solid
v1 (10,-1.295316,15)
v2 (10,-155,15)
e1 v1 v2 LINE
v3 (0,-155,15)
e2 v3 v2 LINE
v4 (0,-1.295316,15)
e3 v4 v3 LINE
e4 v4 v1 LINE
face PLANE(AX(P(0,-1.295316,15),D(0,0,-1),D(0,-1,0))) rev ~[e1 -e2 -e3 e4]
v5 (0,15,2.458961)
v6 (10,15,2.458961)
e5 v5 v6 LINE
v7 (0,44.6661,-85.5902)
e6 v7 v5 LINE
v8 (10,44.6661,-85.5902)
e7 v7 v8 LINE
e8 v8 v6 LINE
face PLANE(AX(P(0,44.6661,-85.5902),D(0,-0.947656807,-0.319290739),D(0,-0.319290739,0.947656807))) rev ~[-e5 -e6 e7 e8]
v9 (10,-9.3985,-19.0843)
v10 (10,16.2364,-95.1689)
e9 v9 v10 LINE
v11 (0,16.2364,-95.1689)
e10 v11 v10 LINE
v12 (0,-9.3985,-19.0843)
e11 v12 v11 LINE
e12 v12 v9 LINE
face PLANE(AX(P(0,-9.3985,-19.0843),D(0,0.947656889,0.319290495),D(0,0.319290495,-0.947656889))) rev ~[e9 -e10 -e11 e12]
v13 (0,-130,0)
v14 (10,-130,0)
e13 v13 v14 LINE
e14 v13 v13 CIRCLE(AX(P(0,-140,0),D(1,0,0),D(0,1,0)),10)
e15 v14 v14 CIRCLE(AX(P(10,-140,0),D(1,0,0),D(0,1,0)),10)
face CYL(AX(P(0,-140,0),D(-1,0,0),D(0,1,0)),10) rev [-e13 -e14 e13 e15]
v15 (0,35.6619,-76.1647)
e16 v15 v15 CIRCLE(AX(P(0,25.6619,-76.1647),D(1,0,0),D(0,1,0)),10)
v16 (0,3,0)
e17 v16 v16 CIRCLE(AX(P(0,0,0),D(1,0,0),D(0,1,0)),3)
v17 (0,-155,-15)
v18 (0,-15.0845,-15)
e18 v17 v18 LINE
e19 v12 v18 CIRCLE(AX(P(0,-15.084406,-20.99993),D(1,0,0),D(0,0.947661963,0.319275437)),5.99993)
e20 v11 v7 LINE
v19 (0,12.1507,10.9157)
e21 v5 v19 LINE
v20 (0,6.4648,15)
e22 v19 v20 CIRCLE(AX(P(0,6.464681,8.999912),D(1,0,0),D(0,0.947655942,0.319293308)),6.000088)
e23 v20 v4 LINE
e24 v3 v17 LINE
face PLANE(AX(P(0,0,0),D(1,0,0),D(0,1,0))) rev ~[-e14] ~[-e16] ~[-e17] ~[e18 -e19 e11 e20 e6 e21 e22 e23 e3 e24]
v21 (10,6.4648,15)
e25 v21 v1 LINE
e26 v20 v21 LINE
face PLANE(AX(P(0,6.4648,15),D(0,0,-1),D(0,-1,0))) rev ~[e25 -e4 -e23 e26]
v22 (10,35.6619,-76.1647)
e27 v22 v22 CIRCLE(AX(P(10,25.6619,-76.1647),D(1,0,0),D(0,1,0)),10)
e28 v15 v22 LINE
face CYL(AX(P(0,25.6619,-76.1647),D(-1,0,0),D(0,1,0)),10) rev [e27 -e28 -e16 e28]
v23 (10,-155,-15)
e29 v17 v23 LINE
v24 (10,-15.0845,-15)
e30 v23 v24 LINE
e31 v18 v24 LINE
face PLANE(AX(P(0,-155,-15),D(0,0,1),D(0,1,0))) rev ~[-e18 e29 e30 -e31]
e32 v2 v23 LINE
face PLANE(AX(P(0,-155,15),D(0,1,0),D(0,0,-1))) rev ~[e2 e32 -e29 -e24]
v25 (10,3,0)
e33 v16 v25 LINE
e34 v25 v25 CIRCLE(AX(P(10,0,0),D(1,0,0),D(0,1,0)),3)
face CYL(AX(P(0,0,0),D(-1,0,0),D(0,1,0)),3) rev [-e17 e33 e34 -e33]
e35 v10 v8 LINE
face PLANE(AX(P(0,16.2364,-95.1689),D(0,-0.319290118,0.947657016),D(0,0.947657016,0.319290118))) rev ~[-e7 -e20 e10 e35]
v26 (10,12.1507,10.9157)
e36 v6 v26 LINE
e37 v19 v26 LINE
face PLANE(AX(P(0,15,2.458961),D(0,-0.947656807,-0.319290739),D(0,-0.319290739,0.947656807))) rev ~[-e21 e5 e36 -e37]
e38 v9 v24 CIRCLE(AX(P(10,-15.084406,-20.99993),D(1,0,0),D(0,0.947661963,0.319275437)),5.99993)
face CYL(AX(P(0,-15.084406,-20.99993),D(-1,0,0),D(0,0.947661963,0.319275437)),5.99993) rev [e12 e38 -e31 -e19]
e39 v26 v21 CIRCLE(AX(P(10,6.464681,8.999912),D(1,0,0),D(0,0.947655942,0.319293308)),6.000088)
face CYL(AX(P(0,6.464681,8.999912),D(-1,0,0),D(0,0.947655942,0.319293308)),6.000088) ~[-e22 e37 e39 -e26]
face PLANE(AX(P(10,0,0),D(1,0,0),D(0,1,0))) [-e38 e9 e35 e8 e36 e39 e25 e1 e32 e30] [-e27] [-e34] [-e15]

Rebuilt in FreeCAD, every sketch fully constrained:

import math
import FreeCAD as App
import Part
import Sketcher
from FreeCAD import Vector
Q = App.Units.Quantity

doc = App.newDocument("Part")
params = doc.addObject("Spreadsheet::Sheet", "Params")
for row, (alias, value) in enumerate([
    ("sketch1_diameter", "20 mm"),
    ("sketch1_diameter2", "6 mm"),
    ("sketch1_radius", "6 mm"),
    ("sketch1_height", "30 mm"),
    ("sketch1_length", "30 mm"),
    ("pad1_length", "10 mm"),
], start=1):
    params.set(f"A{row}", alias)
    params.set(f"B{row}", "=" + value)
    params.setAlias(f"B{row}", alias)

body = doc.addObject("PartDesign::Body", "Body")

# Sketch on YZ plane
sketch1 = body.newObject("Sketcher::SketchObject", "Sketch")
sketch1.AttachmentSupport = (doc.getObject("YZ_Plane"), [""])
sketch1.MapMode = "FlatFace"
sketch1.addGeometry(Part.ArcOfCircle(Part.Circle(Vector(6.5, 9, 0), Vector(0, 0, 1), 6), math.radians(19), math.radians(90)), False)
sketch1.addGeometry(Part.LineSegment(Vector(6.5, 15, 0), Vector(-155, 15, 0)), False)
sketch1.addGeometry(Part.LineSegment(Vector(-155, 15, 0), Vector(-155, -15, 0)), False)
sketch1.addGeometry(Part.LineSegment(Vector(-155, -15, 0), Vector(-15.1, -15, 0)), False)
sketch1.addGeometry(Part.ArcOfCircle(Part.Circle(Vector(-15.1, -21, 0), Vector(0, 0, 1), 6), math.radians(19), math.radians(90)), False)
sketch1.addGeometry(Part.LineSegment(Vector(-9.4, -19.1, 0), Vector(16.2, -95.2, 0)), False)
sketch1.addGeometry(Part.LineSegment(Vector(16.2, -95.2, 0), Vector(44.7, -85.6, 0)), False)
sketch1.addGeometry(Part.LineSegment(Vector(44.7, -85.6, 0), Vector(12.2, 10.9, 0)), False)
sketch1.addGeometry(Part.Circle(Vector(25.7, -76.2, 0), Vector(0, 0, 1), 10), False)
sketch1.addGeometry(Part.Circle(Vector(-140, 0, 0), Vector(0, 0, 1), 10), False)
sketch1.addGeometry(Part.Circle(Vector(0, 0, 0), Vector(0, 0, 1), 3), False)
sketch1.addConstraint(Sketcher.Constraint("Tangent", 0, 2, 1, 1))
sketch1.addConstraint(Sketcher.Constraint("Coincident", 1, 2, 2, 1))
sketch1.addConstraint(Sketcher.Constraint("Coincident", 2, 2, 3, 1))
sketch1.addConstraint(Sketcher.Constraint("Tangent", 3, 2, 4, 2))
sketch1.addConstraint(Sketcher.Constraint("Tangent", 4, 1, 5, 1))
sketch1.addConstraint(Sketcher.Constraint("Coincident", 5, 2, 6, 1))
sketch1.addConstraint(Sketcher.Constraint("Coincident", 6, 2, 7, 1))
sketch1.addConstraint(Sketcher.Constraint("Tangent", 7, 2, 0, 1))
sketch1.addConstraint(Sketcher.Constraint("Horizontal", 1))
sketch1.addConstraint(Sketcher.Constraint("Vertical", 2))
sketch1.addConstraint(Sketcher.Constraint("Horizontal", 3))
sketch1.addConstraint(Sketcher.Constraint("Coincident", 10, 3, -1, 1))
sketch1.addConstraint(Sketcher.Constraint("Equal", 0, 4))
sketch1.addConstraint(Sketcher.Constraint("Equal", 8, 9))
sketch1.addConstraint(Sketcher.Constraint("PointOnObject", 9, 3, -1))
sketch1.addConstraint(Sketcher.Constraint("Perpendicular", 5, 6))
sketch1.addConstraint(Sketcher.Constraint("Perpendicular", 6, 7))
sketch1.addConstraint(Sketcher.Constraint("Diameter", 8, 20.0))
sketch1.addConstraint(Sketcher.Constraint("Diameter", 10, 6.0))
sketch1.addConstraint(Sketcher.Constraint("Radius", 0, 6.0))
sketch1.addConstraint(Sketcher.Constraint("DistanceY", 2, 2, 2, 1, 30.0))
sketch1.addConstraint(Sketcher.Constraint("Distance", 6, 30.0))
sketch1.addConstraint(Sketcher.Constraint("DistanceY", -1, 1, 0, 2, 15.0))
sketch1.addConstraint(Sketcher.Constraint("DistanceX", 1, 2, 9, 3, 15.0))
sketch1.addConstraint(Sketcher.Constraint("Angle", 7, Q("108.62 deg")))
sketch1.addConstraint(Sketcher.Constraint("DistanceX", 9, 3, -1, 1, 140.0))
sketch1.addConstraint(Sketcher.Constraint("Distance", 5, 80.287))
sketch1.addConstraint(Sketcher.Constraint("DistanceX", 1, 2, 1, 1, 161.4648))
sketch1.addConstraint(Sketcher.Constraint("DistanceX", -1, 1, 8, 3, 25.662))
sketch1.addConstraint(Sketcher.Constraint("DistanceY", 8, 3, -1, 1, 76.1647))
sketch1.setExpression("Constraints[17]", "Params.sketch1_diameter")
sketch1.setExpression("Constraints[18]", "Params.sketch1_diameter2")
sketch1.setExpression("Constraints[19]", "Params.sketch1_radius")
sketch1.setExpression("Constraints[20]", "Params.sketch1_height")
sketch1.setExpression("Constraints[21]", "Params.sketch1_length")
pad1 = body.newObject("PartDesign::Pad", "Pad")
pad1.Profile = sketch1
pad1.setExpression("Length", "Params.pad1_length")

doc.recompute()
